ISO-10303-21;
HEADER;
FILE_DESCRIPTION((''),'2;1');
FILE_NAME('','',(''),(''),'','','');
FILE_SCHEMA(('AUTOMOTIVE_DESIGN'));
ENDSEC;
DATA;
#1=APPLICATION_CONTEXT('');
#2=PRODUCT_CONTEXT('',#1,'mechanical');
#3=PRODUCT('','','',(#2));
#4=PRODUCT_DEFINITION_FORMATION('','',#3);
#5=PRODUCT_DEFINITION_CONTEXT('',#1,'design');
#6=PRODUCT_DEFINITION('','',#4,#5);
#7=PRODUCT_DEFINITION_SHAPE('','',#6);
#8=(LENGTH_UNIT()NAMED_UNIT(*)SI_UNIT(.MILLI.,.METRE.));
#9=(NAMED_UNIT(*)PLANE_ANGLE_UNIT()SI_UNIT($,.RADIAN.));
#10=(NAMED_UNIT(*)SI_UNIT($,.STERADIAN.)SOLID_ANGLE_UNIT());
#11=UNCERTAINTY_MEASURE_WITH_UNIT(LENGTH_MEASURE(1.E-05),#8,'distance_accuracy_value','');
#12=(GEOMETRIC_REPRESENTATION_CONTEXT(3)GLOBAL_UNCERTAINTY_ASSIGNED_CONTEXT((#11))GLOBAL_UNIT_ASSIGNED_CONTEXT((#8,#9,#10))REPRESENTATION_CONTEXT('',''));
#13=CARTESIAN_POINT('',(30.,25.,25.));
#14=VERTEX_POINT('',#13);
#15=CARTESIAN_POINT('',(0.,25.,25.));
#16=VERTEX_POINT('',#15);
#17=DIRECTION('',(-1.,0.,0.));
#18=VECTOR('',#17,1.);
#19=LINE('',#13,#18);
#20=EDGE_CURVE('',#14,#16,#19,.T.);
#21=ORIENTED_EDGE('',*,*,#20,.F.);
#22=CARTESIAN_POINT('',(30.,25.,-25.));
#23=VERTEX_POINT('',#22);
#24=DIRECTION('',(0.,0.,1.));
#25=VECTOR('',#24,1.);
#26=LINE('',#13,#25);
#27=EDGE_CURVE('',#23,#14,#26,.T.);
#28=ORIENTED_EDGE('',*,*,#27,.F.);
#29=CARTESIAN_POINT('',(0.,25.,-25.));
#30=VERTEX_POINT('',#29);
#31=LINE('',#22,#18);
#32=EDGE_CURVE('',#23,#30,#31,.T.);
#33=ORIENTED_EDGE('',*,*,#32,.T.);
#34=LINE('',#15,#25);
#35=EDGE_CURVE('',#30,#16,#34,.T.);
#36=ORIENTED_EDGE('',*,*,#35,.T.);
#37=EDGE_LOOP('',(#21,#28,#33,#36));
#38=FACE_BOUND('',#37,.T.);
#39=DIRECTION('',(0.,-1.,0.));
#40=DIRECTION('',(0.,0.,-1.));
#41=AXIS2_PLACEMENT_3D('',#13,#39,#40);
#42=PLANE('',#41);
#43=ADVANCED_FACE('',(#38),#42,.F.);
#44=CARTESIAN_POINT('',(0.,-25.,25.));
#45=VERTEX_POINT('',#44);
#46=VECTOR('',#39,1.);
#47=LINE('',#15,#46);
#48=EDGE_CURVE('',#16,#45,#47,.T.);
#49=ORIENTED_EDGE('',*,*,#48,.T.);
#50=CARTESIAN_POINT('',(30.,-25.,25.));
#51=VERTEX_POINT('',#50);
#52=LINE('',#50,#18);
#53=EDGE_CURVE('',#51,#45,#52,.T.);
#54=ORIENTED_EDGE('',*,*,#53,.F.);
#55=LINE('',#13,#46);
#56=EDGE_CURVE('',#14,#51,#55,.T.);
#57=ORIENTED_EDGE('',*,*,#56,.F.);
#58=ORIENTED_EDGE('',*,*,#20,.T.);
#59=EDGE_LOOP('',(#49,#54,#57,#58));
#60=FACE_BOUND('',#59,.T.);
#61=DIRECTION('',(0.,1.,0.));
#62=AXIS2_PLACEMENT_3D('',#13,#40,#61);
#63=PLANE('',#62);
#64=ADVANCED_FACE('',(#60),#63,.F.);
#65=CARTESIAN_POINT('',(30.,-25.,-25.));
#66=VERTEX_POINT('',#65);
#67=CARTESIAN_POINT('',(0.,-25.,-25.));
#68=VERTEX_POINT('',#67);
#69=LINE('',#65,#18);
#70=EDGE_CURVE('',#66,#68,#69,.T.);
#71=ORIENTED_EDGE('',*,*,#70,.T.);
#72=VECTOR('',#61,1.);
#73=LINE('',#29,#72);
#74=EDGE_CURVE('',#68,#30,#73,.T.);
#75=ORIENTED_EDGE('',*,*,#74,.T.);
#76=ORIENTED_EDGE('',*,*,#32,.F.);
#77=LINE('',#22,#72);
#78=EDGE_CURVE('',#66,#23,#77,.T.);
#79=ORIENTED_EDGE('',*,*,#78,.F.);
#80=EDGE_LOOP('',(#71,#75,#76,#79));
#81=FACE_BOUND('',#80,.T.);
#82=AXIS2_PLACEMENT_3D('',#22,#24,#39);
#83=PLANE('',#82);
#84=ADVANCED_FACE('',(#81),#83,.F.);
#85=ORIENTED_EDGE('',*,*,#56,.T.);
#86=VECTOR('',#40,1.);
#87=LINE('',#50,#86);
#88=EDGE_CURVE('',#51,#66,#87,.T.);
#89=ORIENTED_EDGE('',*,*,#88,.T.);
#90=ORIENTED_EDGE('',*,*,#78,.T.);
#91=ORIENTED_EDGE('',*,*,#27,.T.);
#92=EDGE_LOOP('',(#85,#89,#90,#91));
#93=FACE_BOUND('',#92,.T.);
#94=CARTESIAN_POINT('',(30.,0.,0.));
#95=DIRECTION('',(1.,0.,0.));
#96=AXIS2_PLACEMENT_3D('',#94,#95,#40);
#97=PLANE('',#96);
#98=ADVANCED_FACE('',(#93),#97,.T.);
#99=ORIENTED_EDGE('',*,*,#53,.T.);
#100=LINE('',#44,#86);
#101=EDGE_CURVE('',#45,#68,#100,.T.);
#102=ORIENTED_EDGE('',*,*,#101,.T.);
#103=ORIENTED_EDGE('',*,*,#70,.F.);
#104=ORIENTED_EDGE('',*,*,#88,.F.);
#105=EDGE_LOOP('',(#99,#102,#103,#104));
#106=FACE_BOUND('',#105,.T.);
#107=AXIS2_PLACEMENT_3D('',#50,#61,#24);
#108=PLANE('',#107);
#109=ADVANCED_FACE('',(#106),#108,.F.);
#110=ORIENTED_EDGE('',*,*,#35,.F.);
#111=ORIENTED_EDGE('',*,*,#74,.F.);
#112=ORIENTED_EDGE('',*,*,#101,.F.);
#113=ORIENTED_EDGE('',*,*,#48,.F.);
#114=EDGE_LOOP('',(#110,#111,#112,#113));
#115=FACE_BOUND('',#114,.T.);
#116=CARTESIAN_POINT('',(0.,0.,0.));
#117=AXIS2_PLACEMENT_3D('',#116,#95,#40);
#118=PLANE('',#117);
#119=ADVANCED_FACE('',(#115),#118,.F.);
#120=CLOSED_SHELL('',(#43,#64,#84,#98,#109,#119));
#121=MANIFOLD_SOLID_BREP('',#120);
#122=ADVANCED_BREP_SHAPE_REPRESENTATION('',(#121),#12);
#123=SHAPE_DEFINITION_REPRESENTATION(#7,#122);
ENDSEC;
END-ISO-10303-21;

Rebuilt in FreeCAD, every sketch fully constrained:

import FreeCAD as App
import Part
import Sketcher
from FreeCAD import Vector

doc = App.newDocument("Part")
params = doc.addObject("Spreadsheet::Sheet", "Params")
for row, (alias, value) in enumerate([
    ("sketch1_width", "50 mm"),
    ("pad1_length", "30 mm"),
], start=1):
    params.set(f"A{row}", alias)
    params.set(f"B{row}", "=" + value)
    params.setAlias(f"B{row}", alias)

body = doc.addObject("PartDesign::Body", "Body")

# Sketch on YZ plane
sketch1 = doc.addObject("Sketcher::SketchObject", "Sketch")
body.addObject(sketch1)
sketch1.AttachmentSupport = (doc.YZ_Plane, [""])
sketch1.MapMode = "FlatFace"
sketch1.addGeometry([
    Part.LineSegment(Vector(25, 25, 0), Vector(-25, 25, 0)),
    Part.LineSegment(Vector(-25, 25, 0), Vector(-25, -25, 0)),
    Part.LineSegment(Vector(-25, -25, 0), Vector(25, -25, 0)),
    Part.LineSegment(Vector(25, -25, 0), Vector(25, 25, 0)),
], False)
sketch1.addConstraint([
    Sketcher.Constraint("Coincident", 0, 2, 1, 1),
    Sketcher.Constraint("Coincident", 1, 2, 2, 1),
    Sketcher.Constraint("Coincident", 2, 2, 3, 1),
    Sketcher.Constraint("Coincident", 3, 2, 0, 1),
    Sketcher.Constraint("Horizontal", 0),
    Sketcher.Constraint("Vertical", 1),
    Sketcher.Constraint("Horizontal", 2),
    Sketcher.Constraint("Vertical", 3),
    Sketcher.Constraint("Symmetric", 0, 2, 2, 2, -1, 1),
    Sketcher.Constraint("Equal", 2, 1),
    Sketcher.Constraint("DistanceX", 0, 2, 0, 1, 50.0),
])
sketch1.setExpression("Constraints[10]", "Params.sketch1_width")
pad1 = doc.addObject("PartDesign::Pad", "Pad")
body.addObject(pad1)
pad1.Profile = sketch1
pad1.setExpression("Length", "Params.pad1_length")

doc.recompute()
